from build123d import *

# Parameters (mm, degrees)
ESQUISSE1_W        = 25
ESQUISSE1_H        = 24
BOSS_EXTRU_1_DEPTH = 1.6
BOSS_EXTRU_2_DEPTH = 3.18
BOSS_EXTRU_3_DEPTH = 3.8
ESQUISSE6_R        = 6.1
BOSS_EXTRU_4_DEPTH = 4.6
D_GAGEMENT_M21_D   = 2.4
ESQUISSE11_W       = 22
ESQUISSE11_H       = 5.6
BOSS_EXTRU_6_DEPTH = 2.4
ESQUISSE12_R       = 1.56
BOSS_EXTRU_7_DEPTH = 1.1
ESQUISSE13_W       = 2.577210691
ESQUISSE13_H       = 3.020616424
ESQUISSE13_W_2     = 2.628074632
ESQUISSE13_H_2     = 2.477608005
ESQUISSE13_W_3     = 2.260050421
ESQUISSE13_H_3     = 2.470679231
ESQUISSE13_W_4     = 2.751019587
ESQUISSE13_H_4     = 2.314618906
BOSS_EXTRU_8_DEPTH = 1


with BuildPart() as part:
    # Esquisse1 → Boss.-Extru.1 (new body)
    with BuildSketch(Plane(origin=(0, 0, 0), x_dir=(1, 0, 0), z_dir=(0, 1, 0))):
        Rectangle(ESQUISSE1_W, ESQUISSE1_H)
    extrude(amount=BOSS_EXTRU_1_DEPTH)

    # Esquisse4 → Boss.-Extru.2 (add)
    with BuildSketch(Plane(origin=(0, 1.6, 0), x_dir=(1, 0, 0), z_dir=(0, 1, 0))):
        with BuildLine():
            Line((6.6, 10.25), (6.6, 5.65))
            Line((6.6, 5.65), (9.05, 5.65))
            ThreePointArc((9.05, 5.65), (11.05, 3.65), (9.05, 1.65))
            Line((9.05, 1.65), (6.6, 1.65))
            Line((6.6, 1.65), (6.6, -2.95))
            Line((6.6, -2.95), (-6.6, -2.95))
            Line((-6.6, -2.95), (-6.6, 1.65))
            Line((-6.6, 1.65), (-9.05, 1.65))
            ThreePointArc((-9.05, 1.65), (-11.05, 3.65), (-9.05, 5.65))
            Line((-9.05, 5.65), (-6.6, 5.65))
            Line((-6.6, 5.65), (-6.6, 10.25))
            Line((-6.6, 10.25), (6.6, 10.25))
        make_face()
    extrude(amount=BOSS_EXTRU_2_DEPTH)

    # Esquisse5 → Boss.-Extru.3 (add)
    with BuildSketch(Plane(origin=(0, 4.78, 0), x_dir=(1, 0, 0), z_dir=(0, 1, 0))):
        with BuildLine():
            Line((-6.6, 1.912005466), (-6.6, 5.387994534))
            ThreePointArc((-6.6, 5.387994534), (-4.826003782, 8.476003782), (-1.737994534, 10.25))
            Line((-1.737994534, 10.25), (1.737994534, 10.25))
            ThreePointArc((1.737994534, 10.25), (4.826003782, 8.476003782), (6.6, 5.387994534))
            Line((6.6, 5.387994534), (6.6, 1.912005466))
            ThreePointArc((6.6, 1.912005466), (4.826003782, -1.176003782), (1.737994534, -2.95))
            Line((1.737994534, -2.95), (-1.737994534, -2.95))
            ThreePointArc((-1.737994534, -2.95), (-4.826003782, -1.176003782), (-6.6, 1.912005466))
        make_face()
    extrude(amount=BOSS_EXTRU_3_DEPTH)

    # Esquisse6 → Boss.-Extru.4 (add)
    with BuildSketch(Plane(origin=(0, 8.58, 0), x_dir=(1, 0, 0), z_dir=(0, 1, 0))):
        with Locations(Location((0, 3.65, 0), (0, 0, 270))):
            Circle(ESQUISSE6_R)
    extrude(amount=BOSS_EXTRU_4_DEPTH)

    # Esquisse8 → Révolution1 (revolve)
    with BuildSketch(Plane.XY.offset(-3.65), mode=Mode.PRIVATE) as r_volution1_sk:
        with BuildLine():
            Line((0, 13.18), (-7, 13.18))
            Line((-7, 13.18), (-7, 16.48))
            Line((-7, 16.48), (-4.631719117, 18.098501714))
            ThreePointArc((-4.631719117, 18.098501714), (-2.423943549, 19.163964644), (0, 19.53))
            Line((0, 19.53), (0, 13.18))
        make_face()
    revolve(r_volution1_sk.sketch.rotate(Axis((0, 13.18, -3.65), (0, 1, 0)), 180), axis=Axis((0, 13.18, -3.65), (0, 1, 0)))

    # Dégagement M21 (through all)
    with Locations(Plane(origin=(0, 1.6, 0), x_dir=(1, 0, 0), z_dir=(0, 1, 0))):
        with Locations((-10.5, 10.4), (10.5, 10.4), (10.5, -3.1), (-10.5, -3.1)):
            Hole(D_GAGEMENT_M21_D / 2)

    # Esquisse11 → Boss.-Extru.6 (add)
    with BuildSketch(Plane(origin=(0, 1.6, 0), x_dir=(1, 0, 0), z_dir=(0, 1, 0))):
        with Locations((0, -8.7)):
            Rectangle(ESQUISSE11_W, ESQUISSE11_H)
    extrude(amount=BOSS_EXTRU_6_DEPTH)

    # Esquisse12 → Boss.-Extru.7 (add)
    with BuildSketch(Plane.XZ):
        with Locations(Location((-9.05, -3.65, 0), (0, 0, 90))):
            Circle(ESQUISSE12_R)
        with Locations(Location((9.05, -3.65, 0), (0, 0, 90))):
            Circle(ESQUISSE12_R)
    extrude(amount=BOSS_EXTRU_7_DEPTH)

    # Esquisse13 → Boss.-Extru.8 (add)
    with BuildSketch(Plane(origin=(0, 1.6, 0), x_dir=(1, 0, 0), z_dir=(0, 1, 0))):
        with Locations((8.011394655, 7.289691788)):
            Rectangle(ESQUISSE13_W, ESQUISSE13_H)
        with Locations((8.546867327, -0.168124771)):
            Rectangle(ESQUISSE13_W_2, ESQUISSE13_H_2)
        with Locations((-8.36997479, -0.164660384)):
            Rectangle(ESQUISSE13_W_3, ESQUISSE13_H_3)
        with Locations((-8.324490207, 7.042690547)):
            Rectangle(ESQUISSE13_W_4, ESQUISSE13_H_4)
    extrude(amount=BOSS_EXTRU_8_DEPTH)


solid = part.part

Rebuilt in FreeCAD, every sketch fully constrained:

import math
import FreeCAD as App
import Part
import Sketcher

V = App.Vector
Q = App.Units.Quantity


def add_polygon(sketch, points):
    """Adds a closed chain of lines whose ends are joined by coincident constraints."""
    first, n = sketch.GeometryCount, len(points)
    for a, b in zip(points, points[1:] + points[:1]):
        sketch.addGeometry(Part.LineSegment(App.Vector(*a, 0), App.Vector(*b, 0)), False)
    for i in range(n):
        sketch.addConstraint(Sketcher.Constraint("Coincident", first + i, 2, first + (i + 1) % n, 1))

doc = App.newDocument("Part")
body = doc.addObject("PartDesign::Body", "Body")

# Sketch on XZ plane
sketch1 = doc.addObject("Sketcher::SketchObject", "Sketch")
body.addObject(sketch1)
sketch1.AttachmentSupport = (doc.XZ_Plane, [""])
sketch1.MapMode = "FlatFace"
add_polygon(sketch1, [(-12, -12), (-12, 12), (12, 12), (12, -12)])  # lines 0-3
sketch1.addConstraint(Sketcher.Constraint("Vertical", 0))
sketch1.addConstraint(Sketcher.Constraint("Horizontal", 1))
sketch1.addConstraint(Sketcher.Constraint("Vertical", 2))
sketch1.addConstraint(Sketcher.Constraint("Horizontal", 3))
sketch1.addConstraint(Sketcher.Constraint("Symmetric", 0, 2, 2, 2, -1, 1))
sketch1.addConstraint(Sketcher.Constraint("DistanceX", 1, 1, 1, 2, Q("25 mm")))
sketch1.addConstraint(Sketcher.Constraint("DistanceY", 0, 1, 0, 2, Q("24 mm")))
pad1 = doc.addObject("PartDesign::Pad", "Pad")
body.addObject(pad1)
pad1.Profile = sketch1
pad1.Length = 1.6
pad1.Reversed = True

# Sketch on XZ plane
sketch2 = doc.addObject("Sketcher::SketchObject", "Sketch001")
body.addObject(sketch2)
sketch2.AttachmentSupport = (doc.XZ_Plane, [""])
sketch2.MapMode = "FlatFace"
sketch2.AttachmentOffset = App.Placement(V(0, 0, -1.6), App.Rotation())
sketch2.addGeometry(Part.LineSegment(V(6.6, -5.7, 0), V(6.6, -10.2, 0)), False)
sketch2.addGeometry(Part.LineSegment(V(6.6, -10.2, 0), V(-6.6, -10.2, 0)), False)
sketch2.addGeometry(Part.LineSegment(V(-6.6, -10.2, 0), V(-6.6, -5.7, 0)), False)
sketch2.addGeometry(Part.LineSegment(V(-6.6, -5.7, 0), V(-9.1, -5.7, 0)), False)
sketch2.addGeometry(Part.ArcOfCircle(Part.Circle(V(-9.1, -3.6, 0), V(0, 0, 1), 2), math.radians(90), math.radians(270)), False)
sketch2.addGeometry(Part.LineSegment(V(-9.1, -1.6, 0), V(-6.6, -1.6, 0)), False)
sketch2.addGeometry(Part.LineSegment(V(-6.6, -1.6, 0), V(-6.6, 3, 0)), False)
sketch2.addGeometry(Part.LineSegment(V(-6.6, 3, 0), V(6.6, 3, 0)), False)
sketch2.addGeometry(Part.LineSegment(V(6.6, 3, 0), V(6.6, -1.6, 0)), False)
sketch2.addGeometry(Part.LineSegment(V(6.6, -1.6, 0), V(9.1, -1.6, 0)), False)
sketch2.addGeometry(Part.ArcOfCircle(Part.Circle(V(9.1, -3.6, 0), V(0, 0, 1), 2), math.radians(-90), math.radians(90)), False)
sketch2.addGeometry(Part.LineSegment(V(9.1, -5.7, 0), V(6.6, -5.7, 0)), False)
sketch2.addConstraint(Sketcher.Constraint("Coincident", 0, 2, 1, 1))
sketch2.addConstraint(Sketcher.Constraint("Coincident", 1, 2, 2, 1))
sketch2.addConstraint(Sketcher.Constraint("Coincident", 2, 2, 3, 1))
sketch2.addConstraint(Sketcher.Constraint("Tangent", 3, 2, 4, 2))
sketch2.addConstraint(Sketcher.Constraint("Tangent", 4, 1, 5, 1))
sketch2.addConstraint(Sketcher.Constraint("Coincident", 5, 2, 6, 1))
sketch2.addConstraint(Sketcher.Constraint("Coincident", 6, 2, 7, 1))
sketch2.addConstraint(Sketcher.Constraint("Coincident", 7, 2, 8, 1))
sketch2.addConstraint(Sketcher.Constraint("Coincident", 8, 2, 9, 1))
sketch2.addConstraint(Sketcher.Constraint("Tangent", 9, 2, 10, 2))
sketch2.addConstraint(Sketcher.Constraint("Tangent", 10, 1, 11, 1))
sketch2.addConstraint(Sketcher.Constraint("Coincident", 11, 2, 0, 1))
sketch2.addConstraint(Sketcher.Constraint("Vertical", 0))
sketch2.addConstraint(Sketcher.Constraint("Horizontal", 1))
sketch2.addConstraint(Sketcher.Constraint("Vertical", 2))
sketch2.addConstraint(Sketcher.Constraint("Horizontal", 3))
sketch2.addConstraint(Sketcher.Constraint("Horizontal", 5))
sketch2.addConstraint(Sketcher.Constraint("Vertical", 6))
sketch2.addConstraint(Sketcher.Constraint("Horizontal", 7))
sketch2.addConstraint(Sketcher.Constraint("Vertical", 8))
sketch2.addConstraint(Sketcher.Constraint("Horizontal", 9))
sketch2.addConstraint(Sketcher.Constraint("Horizontal", 11))
sketch2.addConstraint(Sketcher.Constraint("Equal", 4, 10))
sketch2.addConstraint(Sketcher.Constraint("Symmetric", 4, 3, 10, 3, -2))
sketch2.addConstraint(Sketcher.Constraint("Vertical", 2, 2, 5, 2))
sketch2.addConstraint(Sketcher.Constraint("Vertical", 0, 2, 7, 2))
sketch2.addConstraint(Sketcher.Constraint("Equal", 5, 9))
sketch2.addConstraint(Sketcher.Constraint("Equal", 2, 6))
sketch2.addConstraint(Sketcher.Constraint("Radius", 4, Q("2 mm")))
sketch2.addConstraint(Sketcher.Constraint("DistanceX", 1, 2, 1, 1, Q("13.2 mm")))
sketch2.addConstraint(Sketcher.Constraint("DistanceY", 0, 2, 0, 1, Q("4.6 mm")))
sketch2.addConstraint(Sketcher.Constraint("DistanceX", 3, 2, 3, 1, Q("2.45 mm")))
sketch2.addConstraint(Sketcher.Constraint("DistanceY", 4, 3, -1, 1, Q("3.65 mm")))
pad2 = doc.addObject("PartDesign::Pad", "Pad001")
body.addObject(pad2)
pad2.Profile = sketch2
pad2.Length = 3.18
pad2.Reversed = True

# Sketch on XZ plane
sketch3 = doc.addObject("Sketcher::SketchObject", "Sketch002")
body.addObject(sketch3)
sketch3.AttachmentSupport = (doc.XZ_Plane, [""])
sketch3.MapMode = "FlatFace"
sketch3.AttachmentOffset = App.Placement(V(0, 0, -4.78), App.Rotation())
sketch3.addGeometry(Part.LineSegment(V(-6.6, -5.4, 0), V(-6.6, -1.9, 0)), False)
sketch3.addGeometry(Part.ArcOfCircle(Part.Circle(V(0, -3.6, 0), V(0, 0, 1), 6.8), math.radians(105), math.radians(165)), False)
sketch3.addGeometry(Part.LineSegment(V(-1.7, 3, 0), V(1.7, 3, 0)), False)
sketch3.addGeometry(Part.ArcOfCircle(Part.Circle(V(0, -3.6, 0), V(0, 0, 1), 6.8), math.radians(15), math.radians(75)), False)
sketch3.addGeometry(Part.LineSegment(V(6.6, -1.9, 0), V(6.6, -5.4, 0)), False)
sketch3.addGeometry(Part.ArcOfCircle(Part.Circle(V(0, -3.7, 0), V(0, 0, 1), 6.8), math.radians(-75), math.radians(-15)), False)
sketch3.addGeometry(Part.LineSegment(V(1.7, -10.2, 0), V(-1.7, -10.2, 0)), False)
sketch3.addGeometry(Part.ArcOfCircle(Part.Circle(V(0, -3.7, 0), V(0, 0, 1), 6.8), math.radians(-165), math.radians(-105)), False)
sketch3.addConstraint(Sketcher.Constraint("Coincident", 0, 2, 1, 2))
sketch3.addConstraint(Sketcher.Constraint("Coincident", 1, 1, 2, 1))
sketch3.addConstraint(Sketcher.Constraint("Coincident", 2, 2, 3, 2))
sketch3.addConstraint(Sketcher.Constraint("Coincident", 3, 1, 4, 1))
sketch3.addConstraint(Sketcher.Constraint("Coincident", 4, 2, 5, 2))
sketch3.addConstraint(Sketcher.Constraint("Coincident", 5, 1, 6, 1))
sketch3.addConstraint(Sketcher.Constraint("Coincident", 6, 2, 7, 2))
sketch3.addConstraint(Sketcher.Constraint("Coincident", 7, 1, 0, 1))
sketch3.addConstraint(Sketcher.Constraint("Vertical", 0))
sketch3.addConstraint(Sketcher.Constraint("Horizontal", 2))
sketch3.addConstraint(Sketcher.Constraint("Vertical", 4))
sketch3.addConstraint(Sketcher.Constraint("Horizontal", 6))
sketch3.addConstraint(Sketcher.Constraint("Coincident", 3, 3, 1, 3))
sketch3.addConstraint(Sketcher.Constraint("Coincident", 5, 3, 1, 3))
sketch3.addConstraint(Sketcher.Constraint("Coincident", 7, 3, 1, 3))
sketch3.addConstraint(Sketcher.Constraint("Equal", 1, 3))
sketch3.addConstraint(Sketcher.Constraint("Equal", 3, 5))
sketch3.addConstraint(Sketcher.Constraint("Equal", 5, 7))
sketch3.addConstraint(Sketcher.Constraint("Symmetric", 0, 2, 3, 1, -2))
sketch3.addConstraint(Sketcher.Constraint("Vertical", 2, 2, 5, 1))
sketch3.addConstraint(Sketcher.Constraint("Equal", 6, 0))
sketch3.addConstraint(Sketcher.Constraint("Radius", 1, Q("6.825 mm")))
sketch3.addConstraint(Sketcher.Constraint("DistanceX", 0, 2, -1, 1, Q("6.6 mm")))
sketch3.addConstraint(Sketcher.Constraint("DistanceY", 1, 3, -1, 1, Q("3.65 mm")))
pad3 = doc.addObject("PartDesign::Pad", "Pad002")
body.addObject(pad3)
pad3.Profile = sketch3
pad3.Length = 3.8
pad3.Reversed = True

# Sketch on XZ plane
sketch4 = doc.addObject("Sketcher::SketchObject", "Sketch003")
body.addObject(sketch4)
sketch4.AttachmentSupport = (doc.XZ_Plane, [""])
sketch4.MapMode = "FlatFace"
sketch4.AttachmentOffset = App.Placement(V(0, 0, -8.58), App.Rotation())
sketch4.addGeometry(Part.Circle(V(0, -4, 0), V(0, 0, 1), 6), False)
sketch4.addConstraint(Sketcher.Constraint("PointOnObject", 0, 3, -2))
sketch4.addConstraint(Sketcher.Constraint("Diameter", 0, Q("12.2 mm")))
sketch4.addConstraint(Sketcher.Constraint("DistanceY", 0, 3, -1, 1, Q("3.65 mm")))
pad4 = doc.addObject("PartDesign::Pad", "Pad003")
body.addObject(pad4)
pad4.Profile = sketch4
pad4.Length = 4.6
pad4.Reversed = True

# Sketch on XY plane
sketch5 = doc.addObject("Sketcher::SketchObject", "Sketch004")
body.addObject(sketch5)
sketch5.AttachmentSupport = (doc.XY_Plane, [""])
sketch5.MapMode = "FlatFace"
sketch5.AttachmentOffset = App.Placement(V(0, 0, -3.65), App.Rotation())
sketch5.addGeometry(Part.LineSegment(V(-7, 13.2, 0), V(0, 13.2, 0)), False)
sketch5.addGeometry(Part.LineSegment(V(0, 13.2, 0), V(0, 19.5, 0)), False)
sketch5.addGeometry(Part.ArcOfCircle(Part.Circle(V(0, 11.3, 0), V(0, 0, 1), 8.2), math.radians(90), math.radians(124)), False)
sketch5.addGeometry(Part.LineSegment(V(-4.6, 18.1, 0), V(-7, 16.5, 0)), False)
sketch5.addGeometry(Part.LineSegment(V(-7, 16.5, 0), V(-7, 13.2, 0)), False)
sketch5.addConstraint(Sketcher.Constraint("Coincident", 0, 2, 1, 1))
sketch5.addConstraint(Sketcher.Constraint("Coincident", 1, 2, 2, 1))
sketch5.addConstraint(Sketcher.Constraint("Tangent", 2, 2, 3, 1))
sketch5.addConstraint(Sketcher.Constraint("Coincident", 3, 2, 4, 1))
sketch5.addConstraint(Sketcher.Constraint("Coincident", 4, 2, 0, 1))
sketch5.addConstraint(Sketcher.Constraint("Horizontal", 0))
sketch5.addConstraint(Sketcher.Constraint("Vertical", 1))
sketch5.addConstraint(Sketcher.Constraint("Vertical", 4))
sketch5.addConstraint(Sketcher.Constraint("PointOnObject", 2, 3, -2))
sketch5.addConstraint(Sketcher.Constraint("PointOnObject", 0, 2, -2))
sketch5.addConstraint(Sketcher.Constraint("DistanceX", 0, 1, 0, 2, Q("7 mm")))
sketch5.addConstraint(Sketcher.Constraint("DistanceY", 4, 2, 4, 1, Q("3.3 mm")))
sketch5.addConstraint(Sketcher.Constraint("DistanceY", 1, 1, 1, 2, Q("6.35 mm")))
sketch5.addConstraint(Sketcher.Constraint("DistanceY", -1, 1, 0, 2, Q("13.18 mm")))
sketch5.addConstraint(Sketcher.Constraint("Radius", 2, Q("8.208885 mm")))
revolution = doc.addObject("PartDesign::Revolution", "Revolution")
body.addObject(revolution)
revolution.Profile = sketch5
revolution.ReferenceAxis = (sketch5, ["V_Axis"])
revolution.Angle = 360

# Sketch on XZ plane
sketch6 = doc.addObject("Sketcher::SketchObject", "Sketch005")
body.addObject(sketch6)
sketch6.AttachmentSupport = (doc.XZ_Plane, [""])
sketch6.MapMode = "FlatFace"
sketch6.AttachmentOffset = App.Placement(V(0, 0, -1.6), App.Rotation())
sketch6.addGeometry(Part.Circle(V(-10.5, -10.4, 0), V(0, 0, 1), 1.2), False)
sketch6.addGeometry(Part.Circle(V(10.5, -10.4, 0), V(0, 0, 1), 1.2), False)
sketch6.addGeometry(Part.Circle(V(10.5, 3.1, 0), V(0, 0, 1), 1.2), False)
sketch6.addGeometry(Part.Circle(V(-10.5, 3.1, 0), V(0, 0, 1), 1.2), False)
sketch6.addConstraint(Sketcher.Constraint("Equal", 0, 1))
sketch6.addConstraint(Sketcher.Constraint("Equal", 1, 2))
sketch6.addConstraint(Sketcher.Constraint("Equal", 2, 3))
sketch6.addConstraint(Sketcher.Constraint("Symmetric", 0, 3, 1, 3, -2))
sketch6.addConstraint(Sketcher.Constraint("Symmetric", 2, 3, 3, 3, -2))
sketch6.addConstraint(Sketcher.Constraint("Vertical", 1, 3, 2, 3))
sketch6.addConstraint(Sketcher.Constraint("Diameter", 0, Q("2.4 mm")))
sketch6.addConstraint(Sketcher.Constraint("DistanceX", 0, 3, 1, 3, Q("21 mm")))
sketch6.addConstraint(Sketcher.Constraint("DistanceY", 0, 3, -1, 1, Q("10.4 mm")))
sketch6.addConstraint(Sketcher.Constraint("DistanceY", -1, 1, 2, 3, Q("3.1 mm")))
doc.recompute()
hole = doc.addObject("PartDesign::Hole", "Hole")
body.addObject(hole)
hole.Profile = sketch6
hole.ThreadType = "None"
hole.Diameter = 2.4
hole.DepthType = "ThroughAll"
hole.Reversed = True

# Sketch on XZ plane
sketch7 = doc.addObject("Sketcher::SketchObject", "Sketch006")
body.addObject(sketch7)
sketch7.AttachmentSupport = (doc.XZ_Plane, [""])
sketch7.MapMode = "FlatFace"
sketch7.AttachmentOffset = App.Placement(V(0, 0, -1.6), App.Rotation())
add_polygon(sketch7, [(-11, 6), (-11, 12), (11, 12), (11, 6)])  # lines 0-3
sketch7.addConstraint(Sketcher.Constraint("Vertical", 0))
sketch7.addConstraint(Sketcher.Constraint("Horizontal", 1))
sketch7.addConstraint(Sketcher.Constraint("Vertical", 2))
sketch7.addConstraint(Sketcher.Constraint("Horizontal", 3))
sketch7.addConstraint(Sketcher.Constraint("DistanceX", 1, 1, 1, 2, Q("22 mm")))
sketch7.addConstraint(Sketcher.Constraint("DistanceY", 0, 1, 0, 2, Q("5.6 mm")))
sketch7.addConstraint(Sketcher.Constraint("DistanceX", 0, 2, -1, 1, Q("11 mm")))
sketch7.addConstraint(Sketcher.Constraint("DistanceY", -1, 1, 0, 2, Q("11.5 mm")))
pad5 = doc.addObject("PartDesign::Pad", "Pad004")
body.addObject(pad5)
pad5.Profile = sketch7
pad5.Length = 2.4
pad5.Reversed = True

# Sketch on XZ plane
sketch8 = doc.addObject("Sketcher::SketchObject", "Sketch007")
body.addObject(sketch8)
sketch8.AttachmentSupport = (doc.XZ_Plane, [""])
sketch8.MapMode = "FlatFace"
sketch8.addGeometry(Part.Circle(V(-9.1, -3.6, 0), V(0, 0, 1), 1.6), False)
sketch8.addGeometry(Part.Circle(V(9.1, -3.6, 0), V(0, 0, 1), 1.6), False)
sketch8.addConstraint(Sketcher.Constraint("Equal", 0, 1))
sketch8.addConstraint(Sketcher.Constraint("Symmetric", 0, 3, 1, 3, -2))
sketch8.addConstraint(Sketcher.Constraint("Diameter", 0, Q("3.12 mm")))
sketch8.addConstraint(Sketcher.Constraint("DistanceX", 0, 3, 1, 3, Q("18.1 mm")))
sketch8.addConstraint(Sketcher.Constraint("DistanceY", 0, 3, -1, 1, Q("3.65 mm")))
pad6 = doc.addObject("PartDesign::Pad", "Pad005")
body.addObject(pad6)
pad6.Profile = sketch8
pad6.Length = 1.1

# Sketch on XZ plane
sketch9 = doc.addObject("Sketcher::SketchObject", "Sketch008")
body.addObject(sketch9)
sketch9.AttachmentSupport = (doc.XZ_Plane, [""])
sketch9.MapMode = "FlatFace"
sketch9.AttachmentOffset = App.Placement(V(0, 0, -1.6), App.Rotation())
add_polygon(sketch9, [(6.7, -8.8), (6.7, -5.8), (9.3, -5.8), (9.3, -8.8)])  # lines 0-3
add_polygon(sketch9, [(7.2, -1.1), (7.2, 1.4), (9.9, 1.4), (9.9, -1.1)])  # lines 4-7
add_polygon(sketch9, [(-9.5, -1.1), (-9.5, 1.4), (-7.2, 1.4), (-7.2, -1.1)])  # lines 8-11
add_polygon(sketch9, [(-9.7, -8.2), (-9.7, -5.9), (-6.9, -5.9), (-6.9, -8.2)])  # lines 12-15
sketch9.addConstraint(Sketcher.Constraint("Vertical", 0))
sketch9.addConstraint(Sketcher.Constraint("Horizontal", 1))
sketch9.addConstraint(Sketcher.Constraint("Vertical", 2))
sketch9.addConstraint(Sketcher.Constraint("Horizontal", 3))
sketch9.addConstraint(Sketcher.Constraint("Vertical", 4))
sketch9.addConstraint(Sketcher.Constraint("Horizontal", 5))
sketch9.addConstraint(Sketcher.Constraint("Vertical", 6))
sketch9.addConstraint(Sketcher.Constraint("Horizontal", 7))
sketch9.addConstraint(Sketcher.Constraint("Vertical", 8))
sketch9.addConstraint(Sketcher.Constraint("Horizontal", 9))
sketch9.addConstraint(Sketcher.Constraint("Vertical", 10))
sketch9.addConstraint(Sketcher.Constraint("Horizontal", 11))
sketch9.addConstraint(Sketcher.Constraint("Vertical", 12))
sketch9.addConstraint(Sketcher.Constraint("Horizontal", 13))
sketch9.addConstraint(Sketcher.Constraint("Vertical", 14))
sketch9.addConstraint(Sketcher.Constraint("Horizontal", 15))
sketch9.addConstraint(Sketcher.Constraint("Horizontal", 7, 2, 10, 2))
sketch9.addConstraint(Sketcher.Constraint("DistanceX", -1, 1, 1, 2, Q("9.3 mm")))
sketch9.addConstraint(Sketcher.Constraint("DistanceY", 2, 2, -1, 1, Q("8.8 mm")))
sketch9.addConstraint(Sketcher.Constraint("DistanceX", 8, 2, -1, 1, Q("9.5 mm")))
sketch9.addConstraint(Sketcher.Constraint("DistanceY", -1, 1, 8, 2, Q("1.4 mm")))
sketch9.addConstraint(Sketcher.Constraint("DistanceX", 12, 2, -1, 1, Q("9.7 mm")))
sketch9.addConstraint(Sketcher.Constraint("DistanceY", 14, 2, -1, 1, Q("8.2 mm")))
sketch9.addConstraint(Sketcher.Constraint("DistanceX", 1, 1, 1, 2, Q("2.577211 mm")))
sketch9.addConstraint(Sketcher.Constraint("DistanceX", 9, 1, 9, 2, Q("2.26005 mm")))
sketch9.addConstraint(Sketcher.Constraint("DistanceX", 13, 1, 13, 2, Q("2.75102 mm")))
sketch9.addConstraint(Sketcher.Constraint("DistanceY", 4, 1, 4, 2, Q("2.477608 mm")))
sketch9.addConstraint(Sketcher.Constraint("DistanceY", 8, 1, 8, 2, Q("2.470679 mm")))
sketch9.addConstraint(Sketcher.Constraint("DistanceY", 12, 1, 12, 2, Q("2.314619 mm")))
sketch9.addConstraint(Sketcher.Constraint("DistanceX", 5, 1, 5, 2, Q("2.628075 mm")))
sketch9.addConstraint(Sketcher.Constraint("DistanceY", 0, 1, 0, 2, Q("3.020616 mm")))
sketch9.addConstraint(Sketcher.Constraint("DistanceX", -1, 1, 4, 2, Q("7.23283 mm")))
pad7 = doc.addObject("PartDesign::Pad", "Pad006")
body.addObject(pad7)
pad7.Profile = sketch9
pad7.Length = 1
pad7.Reversed = True

doc.recompute()
